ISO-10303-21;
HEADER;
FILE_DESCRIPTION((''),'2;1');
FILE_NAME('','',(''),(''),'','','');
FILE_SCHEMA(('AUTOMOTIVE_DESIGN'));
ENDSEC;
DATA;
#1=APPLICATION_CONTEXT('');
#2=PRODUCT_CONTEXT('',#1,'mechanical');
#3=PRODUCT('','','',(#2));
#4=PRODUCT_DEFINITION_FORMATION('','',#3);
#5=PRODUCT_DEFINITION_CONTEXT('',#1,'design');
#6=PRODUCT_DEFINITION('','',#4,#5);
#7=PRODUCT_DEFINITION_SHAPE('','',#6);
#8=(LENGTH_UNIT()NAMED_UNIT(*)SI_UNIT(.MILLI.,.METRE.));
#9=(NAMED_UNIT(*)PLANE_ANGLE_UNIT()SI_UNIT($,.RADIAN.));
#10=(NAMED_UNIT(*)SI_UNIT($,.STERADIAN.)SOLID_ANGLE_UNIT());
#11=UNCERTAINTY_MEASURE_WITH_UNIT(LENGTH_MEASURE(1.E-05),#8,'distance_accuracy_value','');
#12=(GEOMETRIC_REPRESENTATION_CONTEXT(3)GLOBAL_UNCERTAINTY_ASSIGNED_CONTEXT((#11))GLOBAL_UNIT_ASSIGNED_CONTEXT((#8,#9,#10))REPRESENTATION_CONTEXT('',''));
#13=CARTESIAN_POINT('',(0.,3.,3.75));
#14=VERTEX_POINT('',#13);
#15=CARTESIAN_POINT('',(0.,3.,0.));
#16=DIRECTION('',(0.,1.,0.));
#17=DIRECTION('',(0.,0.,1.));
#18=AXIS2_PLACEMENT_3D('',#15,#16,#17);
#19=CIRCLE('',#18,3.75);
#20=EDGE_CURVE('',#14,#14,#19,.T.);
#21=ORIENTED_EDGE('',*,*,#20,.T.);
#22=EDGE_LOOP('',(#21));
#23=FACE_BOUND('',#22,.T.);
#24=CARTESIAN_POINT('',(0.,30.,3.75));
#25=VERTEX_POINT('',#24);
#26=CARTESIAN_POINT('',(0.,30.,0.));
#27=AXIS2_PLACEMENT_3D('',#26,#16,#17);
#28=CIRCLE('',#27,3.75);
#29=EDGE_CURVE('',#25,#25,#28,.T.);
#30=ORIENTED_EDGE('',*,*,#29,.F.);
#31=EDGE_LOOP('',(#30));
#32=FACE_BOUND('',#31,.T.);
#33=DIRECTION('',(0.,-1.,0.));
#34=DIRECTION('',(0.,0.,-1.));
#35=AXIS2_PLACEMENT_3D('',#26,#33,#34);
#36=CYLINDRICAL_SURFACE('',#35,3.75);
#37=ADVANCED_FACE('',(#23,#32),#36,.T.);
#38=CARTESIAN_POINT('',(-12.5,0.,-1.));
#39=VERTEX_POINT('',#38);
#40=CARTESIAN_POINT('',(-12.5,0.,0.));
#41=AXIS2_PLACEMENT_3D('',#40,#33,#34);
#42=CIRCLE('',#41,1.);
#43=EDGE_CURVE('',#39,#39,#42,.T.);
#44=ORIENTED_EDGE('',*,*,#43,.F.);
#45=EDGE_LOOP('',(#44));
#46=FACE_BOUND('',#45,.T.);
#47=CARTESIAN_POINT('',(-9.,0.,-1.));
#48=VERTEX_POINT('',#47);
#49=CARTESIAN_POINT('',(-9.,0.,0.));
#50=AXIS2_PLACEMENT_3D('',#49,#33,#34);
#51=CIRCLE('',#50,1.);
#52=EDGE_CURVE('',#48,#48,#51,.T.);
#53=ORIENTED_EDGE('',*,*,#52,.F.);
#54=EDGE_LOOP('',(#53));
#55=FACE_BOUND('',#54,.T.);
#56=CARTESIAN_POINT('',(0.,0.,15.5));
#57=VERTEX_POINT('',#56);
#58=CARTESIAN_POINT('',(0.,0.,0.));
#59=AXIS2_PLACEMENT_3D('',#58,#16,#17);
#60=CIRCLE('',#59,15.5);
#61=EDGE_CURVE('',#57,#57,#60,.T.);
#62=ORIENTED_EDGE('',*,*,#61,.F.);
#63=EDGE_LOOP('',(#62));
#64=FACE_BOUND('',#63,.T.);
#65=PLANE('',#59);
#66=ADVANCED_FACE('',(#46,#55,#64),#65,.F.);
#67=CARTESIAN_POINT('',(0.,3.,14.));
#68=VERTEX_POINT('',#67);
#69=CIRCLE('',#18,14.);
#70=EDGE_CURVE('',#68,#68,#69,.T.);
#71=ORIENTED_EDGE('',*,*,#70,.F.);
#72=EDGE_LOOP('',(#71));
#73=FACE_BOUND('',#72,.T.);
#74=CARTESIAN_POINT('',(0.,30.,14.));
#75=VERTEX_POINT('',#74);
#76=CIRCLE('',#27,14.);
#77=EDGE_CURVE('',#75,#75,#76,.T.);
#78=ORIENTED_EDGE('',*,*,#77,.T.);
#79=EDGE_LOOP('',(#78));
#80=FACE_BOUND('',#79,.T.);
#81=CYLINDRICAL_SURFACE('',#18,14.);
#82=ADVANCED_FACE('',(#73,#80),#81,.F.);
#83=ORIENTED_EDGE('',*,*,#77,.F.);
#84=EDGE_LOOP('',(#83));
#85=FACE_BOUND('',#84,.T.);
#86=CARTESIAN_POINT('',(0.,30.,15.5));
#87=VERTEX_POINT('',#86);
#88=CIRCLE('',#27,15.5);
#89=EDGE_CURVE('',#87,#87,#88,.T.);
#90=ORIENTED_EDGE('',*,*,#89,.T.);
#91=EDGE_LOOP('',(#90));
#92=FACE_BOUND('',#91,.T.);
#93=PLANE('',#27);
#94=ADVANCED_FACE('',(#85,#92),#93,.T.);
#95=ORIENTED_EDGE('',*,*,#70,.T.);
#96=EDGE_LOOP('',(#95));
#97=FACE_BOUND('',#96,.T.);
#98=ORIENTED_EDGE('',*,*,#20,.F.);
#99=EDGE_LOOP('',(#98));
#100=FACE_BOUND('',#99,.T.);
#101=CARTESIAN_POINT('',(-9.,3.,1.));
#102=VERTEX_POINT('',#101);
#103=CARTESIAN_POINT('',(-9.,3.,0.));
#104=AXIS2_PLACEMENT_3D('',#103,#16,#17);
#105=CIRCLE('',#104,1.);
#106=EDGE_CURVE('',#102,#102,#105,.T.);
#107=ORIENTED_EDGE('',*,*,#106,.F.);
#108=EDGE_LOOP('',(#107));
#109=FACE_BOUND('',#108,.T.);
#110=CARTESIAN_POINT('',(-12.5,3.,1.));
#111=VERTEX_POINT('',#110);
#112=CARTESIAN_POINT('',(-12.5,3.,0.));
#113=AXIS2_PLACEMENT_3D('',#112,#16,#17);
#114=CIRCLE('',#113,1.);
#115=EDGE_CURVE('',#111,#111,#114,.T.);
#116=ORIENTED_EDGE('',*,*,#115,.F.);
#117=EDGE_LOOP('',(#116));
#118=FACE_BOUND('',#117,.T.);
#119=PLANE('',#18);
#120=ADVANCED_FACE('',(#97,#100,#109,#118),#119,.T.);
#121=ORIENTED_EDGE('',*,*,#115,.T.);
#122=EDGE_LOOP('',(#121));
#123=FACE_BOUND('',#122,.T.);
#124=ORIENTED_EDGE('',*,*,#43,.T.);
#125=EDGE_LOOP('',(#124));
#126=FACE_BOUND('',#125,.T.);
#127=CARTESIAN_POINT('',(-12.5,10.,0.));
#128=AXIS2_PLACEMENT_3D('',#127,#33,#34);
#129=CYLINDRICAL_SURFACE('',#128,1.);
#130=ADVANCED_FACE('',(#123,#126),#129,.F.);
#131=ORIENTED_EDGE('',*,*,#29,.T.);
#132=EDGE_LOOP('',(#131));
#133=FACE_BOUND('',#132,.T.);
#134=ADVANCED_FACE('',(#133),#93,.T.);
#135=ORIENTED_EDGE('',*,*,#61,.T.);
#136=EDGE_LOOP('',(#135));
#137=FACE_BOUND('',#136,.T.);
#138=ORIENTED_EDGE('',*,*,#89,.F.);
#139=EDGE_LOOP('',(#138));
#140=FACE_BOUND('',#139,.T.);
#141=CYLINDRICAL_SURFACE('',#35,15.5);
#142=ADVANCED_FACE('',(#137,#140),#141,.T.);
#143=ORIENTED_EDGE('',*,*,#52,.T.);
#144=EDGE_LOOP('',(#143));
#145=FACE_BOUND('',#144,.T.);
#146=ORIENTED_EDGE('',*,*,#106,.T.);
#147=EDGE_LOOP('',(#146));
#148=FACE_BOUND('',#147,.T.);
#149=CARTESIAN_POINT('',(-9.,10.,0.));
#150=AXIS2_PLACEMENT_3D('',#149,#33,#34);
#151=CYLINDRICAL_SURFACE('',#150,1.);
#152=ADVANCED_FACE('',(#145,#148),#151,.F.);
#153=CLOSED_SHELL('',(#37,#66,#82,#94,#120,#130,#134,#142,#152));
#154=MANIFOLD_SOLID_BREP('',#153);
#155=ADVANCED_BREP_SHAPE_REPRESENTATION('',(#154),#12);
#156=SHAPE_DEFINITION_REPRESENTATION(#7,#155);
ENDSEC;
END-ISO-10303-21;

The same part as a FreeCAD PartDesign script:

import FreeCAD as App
import Part
import Sketcher
from FreeCAD import Vector

doc = App.newDocument("Part")
params = doc.addObject("Spreadsheet::Sheet", "Params")
for row, (alias, value) in enumerate([
    ("sketch1_diameter", "31 mm"),
    ("pad1_length", "30 mm"),
    ("sketch2_diameter", "28 mm"),
    ("pocket1_length", "27 mm"),
    ("sketch3_diameter", "2 mm"),
    ("pocket2_length", "10 mm"),
    ("sketch4_diameter", "7.5 mm"),
    ("pad2_length", "27 mm"),
], start=1):
    params.set(f"A{row}", alias)
    params.set(f"B{row}", "=" + value)
    params.setAlias(f"B{row}", alias)

body = doc.addObject("PartDesign::Body", "Body")

sketch1 = body.newObject("Sketcher::SketchObject", "Sketch")
sketch1.AttachmentSupport = (doc.getObject("XZ_Plane"), [""])
sketch1.MapMode = "FlatFace"
sketch1.addGeometry(Part.Circle(Vector(0, 0, 0), Vector(0, 0, 1), 15.5), False)
sketch1.addConstraint([
    Sketcher.Constraint("Coincident", 0, 3, -1, 1),
    Sketcher.Constraint("Diameter", 0, 31.0),
])
sketch1.setExpression("Constraints[1]", "Params.sketch1_diameter")
pad1 = body.newObject("PartDesign::Pad", "Pad")
pad1.Profile = sketch1
pad1.setExpression("Length", "Params.pad1_length")
pad1.Reversed = True

sketch2 = body.newObject("Sketcher::SketchObject", "Sketch001")
sketch2.AttachmentSupport = (doc.getObject("XZ_Plane"), [""])
sketch2.MapMode = "FlatFace"
sketch2.AttachmentOffset = App.Placement(Vector(0, 0, -30), App.Rotation())
sketch2.addGeometry(Part.Circle(Vector(0, 0, 0), Vector(0, 0, 1), 14), False)
sketch2.addConstraint([
    Sketcher.Constraint("Coincident", 0, 3, -1, 1),
    Sketcher.Constraint("Diameter", 0, 28.0),
])
sketch2.setExpression("Constraints[1]", "Params.sketch2_diameter")
pocket1 = body.newObject("PartDesign::Pocket", "Pocket")
pocket1.Profile = sketch2
pocket1.setExpression("Length", "Params.pocket1_length")
pocket1.Reversed = True

sketch3 = body.newObject("Sketcher::SketchObject", "Sketch002")
sketch3.AttachmentSupport = (doc.getObject("XZ_Plane"), [""])
sketch3.MapMode = "FlatFace"
sketch3.addGeometry([
    Part.Circle(Vector(-9, 0, 0), Vector(0, 0, 1), 1),
    Part.Circle(Vector(-12.5, 0, 0), Vector(0, 0, 1), 1),
], False)
sketch3.addConstraint([
    Sketcher.Constraint("Equal", 0, 1),
    Sketcher.Constraint("PointOnObject", 0, 3, -1),
    Sketcher.Constraint("PointOnObject", 1, 3, -1),
    Sketcher.Constraint("Diameter", 0, 2.0),
    Sketcher.Constraint("DistanceX", 0, 3, -1, 1, 9.0),
    Sketcher.Constraint("DistanceX", 1, 3, -1, 1, 12.5),
])
sketch3.setExpression("Constraints[3]", "Params.sketch3_diameter")
pocket2 = body.newObject("PartDesign::Pocket", "Pocket001")
pocket2.Profile = sketch3
pocket2.setExpression("Length", "Params.pocket2_length")

sketch4 = body.newObject("Sketcher::SketchObject", "Sketch003")
sketch4.AttachmentSupport = (doc.getObject("XZ_Plane"), [""])
sketch4.MapMode = "FlatFace"
sketch4.AttachmentOffset = App.Placement(Vector(0, 0, -3), App.Rotation())
sketch4.addGeometry(Part.Circle(Vector(0, 0, 0), Vector(0, 0, 1), 3.75), False)
sketch4.addConstraint([
    Sketcher.Constraint("Coincident", 0, 3, -1, 1),
    Sketcher.Constraint("Diameter", 0, 7.5),
])
sketch4.setExpression("Constraints[1]", "Params.sketch4_diameter")
pad2 = body.newObject("PartDesign::Pad", "Pad001")
pad2.Profile = sketch4
pad2.setExpression("Length", "Params.pad2_length")
pad2.Reversed = True

doc.recompute()
